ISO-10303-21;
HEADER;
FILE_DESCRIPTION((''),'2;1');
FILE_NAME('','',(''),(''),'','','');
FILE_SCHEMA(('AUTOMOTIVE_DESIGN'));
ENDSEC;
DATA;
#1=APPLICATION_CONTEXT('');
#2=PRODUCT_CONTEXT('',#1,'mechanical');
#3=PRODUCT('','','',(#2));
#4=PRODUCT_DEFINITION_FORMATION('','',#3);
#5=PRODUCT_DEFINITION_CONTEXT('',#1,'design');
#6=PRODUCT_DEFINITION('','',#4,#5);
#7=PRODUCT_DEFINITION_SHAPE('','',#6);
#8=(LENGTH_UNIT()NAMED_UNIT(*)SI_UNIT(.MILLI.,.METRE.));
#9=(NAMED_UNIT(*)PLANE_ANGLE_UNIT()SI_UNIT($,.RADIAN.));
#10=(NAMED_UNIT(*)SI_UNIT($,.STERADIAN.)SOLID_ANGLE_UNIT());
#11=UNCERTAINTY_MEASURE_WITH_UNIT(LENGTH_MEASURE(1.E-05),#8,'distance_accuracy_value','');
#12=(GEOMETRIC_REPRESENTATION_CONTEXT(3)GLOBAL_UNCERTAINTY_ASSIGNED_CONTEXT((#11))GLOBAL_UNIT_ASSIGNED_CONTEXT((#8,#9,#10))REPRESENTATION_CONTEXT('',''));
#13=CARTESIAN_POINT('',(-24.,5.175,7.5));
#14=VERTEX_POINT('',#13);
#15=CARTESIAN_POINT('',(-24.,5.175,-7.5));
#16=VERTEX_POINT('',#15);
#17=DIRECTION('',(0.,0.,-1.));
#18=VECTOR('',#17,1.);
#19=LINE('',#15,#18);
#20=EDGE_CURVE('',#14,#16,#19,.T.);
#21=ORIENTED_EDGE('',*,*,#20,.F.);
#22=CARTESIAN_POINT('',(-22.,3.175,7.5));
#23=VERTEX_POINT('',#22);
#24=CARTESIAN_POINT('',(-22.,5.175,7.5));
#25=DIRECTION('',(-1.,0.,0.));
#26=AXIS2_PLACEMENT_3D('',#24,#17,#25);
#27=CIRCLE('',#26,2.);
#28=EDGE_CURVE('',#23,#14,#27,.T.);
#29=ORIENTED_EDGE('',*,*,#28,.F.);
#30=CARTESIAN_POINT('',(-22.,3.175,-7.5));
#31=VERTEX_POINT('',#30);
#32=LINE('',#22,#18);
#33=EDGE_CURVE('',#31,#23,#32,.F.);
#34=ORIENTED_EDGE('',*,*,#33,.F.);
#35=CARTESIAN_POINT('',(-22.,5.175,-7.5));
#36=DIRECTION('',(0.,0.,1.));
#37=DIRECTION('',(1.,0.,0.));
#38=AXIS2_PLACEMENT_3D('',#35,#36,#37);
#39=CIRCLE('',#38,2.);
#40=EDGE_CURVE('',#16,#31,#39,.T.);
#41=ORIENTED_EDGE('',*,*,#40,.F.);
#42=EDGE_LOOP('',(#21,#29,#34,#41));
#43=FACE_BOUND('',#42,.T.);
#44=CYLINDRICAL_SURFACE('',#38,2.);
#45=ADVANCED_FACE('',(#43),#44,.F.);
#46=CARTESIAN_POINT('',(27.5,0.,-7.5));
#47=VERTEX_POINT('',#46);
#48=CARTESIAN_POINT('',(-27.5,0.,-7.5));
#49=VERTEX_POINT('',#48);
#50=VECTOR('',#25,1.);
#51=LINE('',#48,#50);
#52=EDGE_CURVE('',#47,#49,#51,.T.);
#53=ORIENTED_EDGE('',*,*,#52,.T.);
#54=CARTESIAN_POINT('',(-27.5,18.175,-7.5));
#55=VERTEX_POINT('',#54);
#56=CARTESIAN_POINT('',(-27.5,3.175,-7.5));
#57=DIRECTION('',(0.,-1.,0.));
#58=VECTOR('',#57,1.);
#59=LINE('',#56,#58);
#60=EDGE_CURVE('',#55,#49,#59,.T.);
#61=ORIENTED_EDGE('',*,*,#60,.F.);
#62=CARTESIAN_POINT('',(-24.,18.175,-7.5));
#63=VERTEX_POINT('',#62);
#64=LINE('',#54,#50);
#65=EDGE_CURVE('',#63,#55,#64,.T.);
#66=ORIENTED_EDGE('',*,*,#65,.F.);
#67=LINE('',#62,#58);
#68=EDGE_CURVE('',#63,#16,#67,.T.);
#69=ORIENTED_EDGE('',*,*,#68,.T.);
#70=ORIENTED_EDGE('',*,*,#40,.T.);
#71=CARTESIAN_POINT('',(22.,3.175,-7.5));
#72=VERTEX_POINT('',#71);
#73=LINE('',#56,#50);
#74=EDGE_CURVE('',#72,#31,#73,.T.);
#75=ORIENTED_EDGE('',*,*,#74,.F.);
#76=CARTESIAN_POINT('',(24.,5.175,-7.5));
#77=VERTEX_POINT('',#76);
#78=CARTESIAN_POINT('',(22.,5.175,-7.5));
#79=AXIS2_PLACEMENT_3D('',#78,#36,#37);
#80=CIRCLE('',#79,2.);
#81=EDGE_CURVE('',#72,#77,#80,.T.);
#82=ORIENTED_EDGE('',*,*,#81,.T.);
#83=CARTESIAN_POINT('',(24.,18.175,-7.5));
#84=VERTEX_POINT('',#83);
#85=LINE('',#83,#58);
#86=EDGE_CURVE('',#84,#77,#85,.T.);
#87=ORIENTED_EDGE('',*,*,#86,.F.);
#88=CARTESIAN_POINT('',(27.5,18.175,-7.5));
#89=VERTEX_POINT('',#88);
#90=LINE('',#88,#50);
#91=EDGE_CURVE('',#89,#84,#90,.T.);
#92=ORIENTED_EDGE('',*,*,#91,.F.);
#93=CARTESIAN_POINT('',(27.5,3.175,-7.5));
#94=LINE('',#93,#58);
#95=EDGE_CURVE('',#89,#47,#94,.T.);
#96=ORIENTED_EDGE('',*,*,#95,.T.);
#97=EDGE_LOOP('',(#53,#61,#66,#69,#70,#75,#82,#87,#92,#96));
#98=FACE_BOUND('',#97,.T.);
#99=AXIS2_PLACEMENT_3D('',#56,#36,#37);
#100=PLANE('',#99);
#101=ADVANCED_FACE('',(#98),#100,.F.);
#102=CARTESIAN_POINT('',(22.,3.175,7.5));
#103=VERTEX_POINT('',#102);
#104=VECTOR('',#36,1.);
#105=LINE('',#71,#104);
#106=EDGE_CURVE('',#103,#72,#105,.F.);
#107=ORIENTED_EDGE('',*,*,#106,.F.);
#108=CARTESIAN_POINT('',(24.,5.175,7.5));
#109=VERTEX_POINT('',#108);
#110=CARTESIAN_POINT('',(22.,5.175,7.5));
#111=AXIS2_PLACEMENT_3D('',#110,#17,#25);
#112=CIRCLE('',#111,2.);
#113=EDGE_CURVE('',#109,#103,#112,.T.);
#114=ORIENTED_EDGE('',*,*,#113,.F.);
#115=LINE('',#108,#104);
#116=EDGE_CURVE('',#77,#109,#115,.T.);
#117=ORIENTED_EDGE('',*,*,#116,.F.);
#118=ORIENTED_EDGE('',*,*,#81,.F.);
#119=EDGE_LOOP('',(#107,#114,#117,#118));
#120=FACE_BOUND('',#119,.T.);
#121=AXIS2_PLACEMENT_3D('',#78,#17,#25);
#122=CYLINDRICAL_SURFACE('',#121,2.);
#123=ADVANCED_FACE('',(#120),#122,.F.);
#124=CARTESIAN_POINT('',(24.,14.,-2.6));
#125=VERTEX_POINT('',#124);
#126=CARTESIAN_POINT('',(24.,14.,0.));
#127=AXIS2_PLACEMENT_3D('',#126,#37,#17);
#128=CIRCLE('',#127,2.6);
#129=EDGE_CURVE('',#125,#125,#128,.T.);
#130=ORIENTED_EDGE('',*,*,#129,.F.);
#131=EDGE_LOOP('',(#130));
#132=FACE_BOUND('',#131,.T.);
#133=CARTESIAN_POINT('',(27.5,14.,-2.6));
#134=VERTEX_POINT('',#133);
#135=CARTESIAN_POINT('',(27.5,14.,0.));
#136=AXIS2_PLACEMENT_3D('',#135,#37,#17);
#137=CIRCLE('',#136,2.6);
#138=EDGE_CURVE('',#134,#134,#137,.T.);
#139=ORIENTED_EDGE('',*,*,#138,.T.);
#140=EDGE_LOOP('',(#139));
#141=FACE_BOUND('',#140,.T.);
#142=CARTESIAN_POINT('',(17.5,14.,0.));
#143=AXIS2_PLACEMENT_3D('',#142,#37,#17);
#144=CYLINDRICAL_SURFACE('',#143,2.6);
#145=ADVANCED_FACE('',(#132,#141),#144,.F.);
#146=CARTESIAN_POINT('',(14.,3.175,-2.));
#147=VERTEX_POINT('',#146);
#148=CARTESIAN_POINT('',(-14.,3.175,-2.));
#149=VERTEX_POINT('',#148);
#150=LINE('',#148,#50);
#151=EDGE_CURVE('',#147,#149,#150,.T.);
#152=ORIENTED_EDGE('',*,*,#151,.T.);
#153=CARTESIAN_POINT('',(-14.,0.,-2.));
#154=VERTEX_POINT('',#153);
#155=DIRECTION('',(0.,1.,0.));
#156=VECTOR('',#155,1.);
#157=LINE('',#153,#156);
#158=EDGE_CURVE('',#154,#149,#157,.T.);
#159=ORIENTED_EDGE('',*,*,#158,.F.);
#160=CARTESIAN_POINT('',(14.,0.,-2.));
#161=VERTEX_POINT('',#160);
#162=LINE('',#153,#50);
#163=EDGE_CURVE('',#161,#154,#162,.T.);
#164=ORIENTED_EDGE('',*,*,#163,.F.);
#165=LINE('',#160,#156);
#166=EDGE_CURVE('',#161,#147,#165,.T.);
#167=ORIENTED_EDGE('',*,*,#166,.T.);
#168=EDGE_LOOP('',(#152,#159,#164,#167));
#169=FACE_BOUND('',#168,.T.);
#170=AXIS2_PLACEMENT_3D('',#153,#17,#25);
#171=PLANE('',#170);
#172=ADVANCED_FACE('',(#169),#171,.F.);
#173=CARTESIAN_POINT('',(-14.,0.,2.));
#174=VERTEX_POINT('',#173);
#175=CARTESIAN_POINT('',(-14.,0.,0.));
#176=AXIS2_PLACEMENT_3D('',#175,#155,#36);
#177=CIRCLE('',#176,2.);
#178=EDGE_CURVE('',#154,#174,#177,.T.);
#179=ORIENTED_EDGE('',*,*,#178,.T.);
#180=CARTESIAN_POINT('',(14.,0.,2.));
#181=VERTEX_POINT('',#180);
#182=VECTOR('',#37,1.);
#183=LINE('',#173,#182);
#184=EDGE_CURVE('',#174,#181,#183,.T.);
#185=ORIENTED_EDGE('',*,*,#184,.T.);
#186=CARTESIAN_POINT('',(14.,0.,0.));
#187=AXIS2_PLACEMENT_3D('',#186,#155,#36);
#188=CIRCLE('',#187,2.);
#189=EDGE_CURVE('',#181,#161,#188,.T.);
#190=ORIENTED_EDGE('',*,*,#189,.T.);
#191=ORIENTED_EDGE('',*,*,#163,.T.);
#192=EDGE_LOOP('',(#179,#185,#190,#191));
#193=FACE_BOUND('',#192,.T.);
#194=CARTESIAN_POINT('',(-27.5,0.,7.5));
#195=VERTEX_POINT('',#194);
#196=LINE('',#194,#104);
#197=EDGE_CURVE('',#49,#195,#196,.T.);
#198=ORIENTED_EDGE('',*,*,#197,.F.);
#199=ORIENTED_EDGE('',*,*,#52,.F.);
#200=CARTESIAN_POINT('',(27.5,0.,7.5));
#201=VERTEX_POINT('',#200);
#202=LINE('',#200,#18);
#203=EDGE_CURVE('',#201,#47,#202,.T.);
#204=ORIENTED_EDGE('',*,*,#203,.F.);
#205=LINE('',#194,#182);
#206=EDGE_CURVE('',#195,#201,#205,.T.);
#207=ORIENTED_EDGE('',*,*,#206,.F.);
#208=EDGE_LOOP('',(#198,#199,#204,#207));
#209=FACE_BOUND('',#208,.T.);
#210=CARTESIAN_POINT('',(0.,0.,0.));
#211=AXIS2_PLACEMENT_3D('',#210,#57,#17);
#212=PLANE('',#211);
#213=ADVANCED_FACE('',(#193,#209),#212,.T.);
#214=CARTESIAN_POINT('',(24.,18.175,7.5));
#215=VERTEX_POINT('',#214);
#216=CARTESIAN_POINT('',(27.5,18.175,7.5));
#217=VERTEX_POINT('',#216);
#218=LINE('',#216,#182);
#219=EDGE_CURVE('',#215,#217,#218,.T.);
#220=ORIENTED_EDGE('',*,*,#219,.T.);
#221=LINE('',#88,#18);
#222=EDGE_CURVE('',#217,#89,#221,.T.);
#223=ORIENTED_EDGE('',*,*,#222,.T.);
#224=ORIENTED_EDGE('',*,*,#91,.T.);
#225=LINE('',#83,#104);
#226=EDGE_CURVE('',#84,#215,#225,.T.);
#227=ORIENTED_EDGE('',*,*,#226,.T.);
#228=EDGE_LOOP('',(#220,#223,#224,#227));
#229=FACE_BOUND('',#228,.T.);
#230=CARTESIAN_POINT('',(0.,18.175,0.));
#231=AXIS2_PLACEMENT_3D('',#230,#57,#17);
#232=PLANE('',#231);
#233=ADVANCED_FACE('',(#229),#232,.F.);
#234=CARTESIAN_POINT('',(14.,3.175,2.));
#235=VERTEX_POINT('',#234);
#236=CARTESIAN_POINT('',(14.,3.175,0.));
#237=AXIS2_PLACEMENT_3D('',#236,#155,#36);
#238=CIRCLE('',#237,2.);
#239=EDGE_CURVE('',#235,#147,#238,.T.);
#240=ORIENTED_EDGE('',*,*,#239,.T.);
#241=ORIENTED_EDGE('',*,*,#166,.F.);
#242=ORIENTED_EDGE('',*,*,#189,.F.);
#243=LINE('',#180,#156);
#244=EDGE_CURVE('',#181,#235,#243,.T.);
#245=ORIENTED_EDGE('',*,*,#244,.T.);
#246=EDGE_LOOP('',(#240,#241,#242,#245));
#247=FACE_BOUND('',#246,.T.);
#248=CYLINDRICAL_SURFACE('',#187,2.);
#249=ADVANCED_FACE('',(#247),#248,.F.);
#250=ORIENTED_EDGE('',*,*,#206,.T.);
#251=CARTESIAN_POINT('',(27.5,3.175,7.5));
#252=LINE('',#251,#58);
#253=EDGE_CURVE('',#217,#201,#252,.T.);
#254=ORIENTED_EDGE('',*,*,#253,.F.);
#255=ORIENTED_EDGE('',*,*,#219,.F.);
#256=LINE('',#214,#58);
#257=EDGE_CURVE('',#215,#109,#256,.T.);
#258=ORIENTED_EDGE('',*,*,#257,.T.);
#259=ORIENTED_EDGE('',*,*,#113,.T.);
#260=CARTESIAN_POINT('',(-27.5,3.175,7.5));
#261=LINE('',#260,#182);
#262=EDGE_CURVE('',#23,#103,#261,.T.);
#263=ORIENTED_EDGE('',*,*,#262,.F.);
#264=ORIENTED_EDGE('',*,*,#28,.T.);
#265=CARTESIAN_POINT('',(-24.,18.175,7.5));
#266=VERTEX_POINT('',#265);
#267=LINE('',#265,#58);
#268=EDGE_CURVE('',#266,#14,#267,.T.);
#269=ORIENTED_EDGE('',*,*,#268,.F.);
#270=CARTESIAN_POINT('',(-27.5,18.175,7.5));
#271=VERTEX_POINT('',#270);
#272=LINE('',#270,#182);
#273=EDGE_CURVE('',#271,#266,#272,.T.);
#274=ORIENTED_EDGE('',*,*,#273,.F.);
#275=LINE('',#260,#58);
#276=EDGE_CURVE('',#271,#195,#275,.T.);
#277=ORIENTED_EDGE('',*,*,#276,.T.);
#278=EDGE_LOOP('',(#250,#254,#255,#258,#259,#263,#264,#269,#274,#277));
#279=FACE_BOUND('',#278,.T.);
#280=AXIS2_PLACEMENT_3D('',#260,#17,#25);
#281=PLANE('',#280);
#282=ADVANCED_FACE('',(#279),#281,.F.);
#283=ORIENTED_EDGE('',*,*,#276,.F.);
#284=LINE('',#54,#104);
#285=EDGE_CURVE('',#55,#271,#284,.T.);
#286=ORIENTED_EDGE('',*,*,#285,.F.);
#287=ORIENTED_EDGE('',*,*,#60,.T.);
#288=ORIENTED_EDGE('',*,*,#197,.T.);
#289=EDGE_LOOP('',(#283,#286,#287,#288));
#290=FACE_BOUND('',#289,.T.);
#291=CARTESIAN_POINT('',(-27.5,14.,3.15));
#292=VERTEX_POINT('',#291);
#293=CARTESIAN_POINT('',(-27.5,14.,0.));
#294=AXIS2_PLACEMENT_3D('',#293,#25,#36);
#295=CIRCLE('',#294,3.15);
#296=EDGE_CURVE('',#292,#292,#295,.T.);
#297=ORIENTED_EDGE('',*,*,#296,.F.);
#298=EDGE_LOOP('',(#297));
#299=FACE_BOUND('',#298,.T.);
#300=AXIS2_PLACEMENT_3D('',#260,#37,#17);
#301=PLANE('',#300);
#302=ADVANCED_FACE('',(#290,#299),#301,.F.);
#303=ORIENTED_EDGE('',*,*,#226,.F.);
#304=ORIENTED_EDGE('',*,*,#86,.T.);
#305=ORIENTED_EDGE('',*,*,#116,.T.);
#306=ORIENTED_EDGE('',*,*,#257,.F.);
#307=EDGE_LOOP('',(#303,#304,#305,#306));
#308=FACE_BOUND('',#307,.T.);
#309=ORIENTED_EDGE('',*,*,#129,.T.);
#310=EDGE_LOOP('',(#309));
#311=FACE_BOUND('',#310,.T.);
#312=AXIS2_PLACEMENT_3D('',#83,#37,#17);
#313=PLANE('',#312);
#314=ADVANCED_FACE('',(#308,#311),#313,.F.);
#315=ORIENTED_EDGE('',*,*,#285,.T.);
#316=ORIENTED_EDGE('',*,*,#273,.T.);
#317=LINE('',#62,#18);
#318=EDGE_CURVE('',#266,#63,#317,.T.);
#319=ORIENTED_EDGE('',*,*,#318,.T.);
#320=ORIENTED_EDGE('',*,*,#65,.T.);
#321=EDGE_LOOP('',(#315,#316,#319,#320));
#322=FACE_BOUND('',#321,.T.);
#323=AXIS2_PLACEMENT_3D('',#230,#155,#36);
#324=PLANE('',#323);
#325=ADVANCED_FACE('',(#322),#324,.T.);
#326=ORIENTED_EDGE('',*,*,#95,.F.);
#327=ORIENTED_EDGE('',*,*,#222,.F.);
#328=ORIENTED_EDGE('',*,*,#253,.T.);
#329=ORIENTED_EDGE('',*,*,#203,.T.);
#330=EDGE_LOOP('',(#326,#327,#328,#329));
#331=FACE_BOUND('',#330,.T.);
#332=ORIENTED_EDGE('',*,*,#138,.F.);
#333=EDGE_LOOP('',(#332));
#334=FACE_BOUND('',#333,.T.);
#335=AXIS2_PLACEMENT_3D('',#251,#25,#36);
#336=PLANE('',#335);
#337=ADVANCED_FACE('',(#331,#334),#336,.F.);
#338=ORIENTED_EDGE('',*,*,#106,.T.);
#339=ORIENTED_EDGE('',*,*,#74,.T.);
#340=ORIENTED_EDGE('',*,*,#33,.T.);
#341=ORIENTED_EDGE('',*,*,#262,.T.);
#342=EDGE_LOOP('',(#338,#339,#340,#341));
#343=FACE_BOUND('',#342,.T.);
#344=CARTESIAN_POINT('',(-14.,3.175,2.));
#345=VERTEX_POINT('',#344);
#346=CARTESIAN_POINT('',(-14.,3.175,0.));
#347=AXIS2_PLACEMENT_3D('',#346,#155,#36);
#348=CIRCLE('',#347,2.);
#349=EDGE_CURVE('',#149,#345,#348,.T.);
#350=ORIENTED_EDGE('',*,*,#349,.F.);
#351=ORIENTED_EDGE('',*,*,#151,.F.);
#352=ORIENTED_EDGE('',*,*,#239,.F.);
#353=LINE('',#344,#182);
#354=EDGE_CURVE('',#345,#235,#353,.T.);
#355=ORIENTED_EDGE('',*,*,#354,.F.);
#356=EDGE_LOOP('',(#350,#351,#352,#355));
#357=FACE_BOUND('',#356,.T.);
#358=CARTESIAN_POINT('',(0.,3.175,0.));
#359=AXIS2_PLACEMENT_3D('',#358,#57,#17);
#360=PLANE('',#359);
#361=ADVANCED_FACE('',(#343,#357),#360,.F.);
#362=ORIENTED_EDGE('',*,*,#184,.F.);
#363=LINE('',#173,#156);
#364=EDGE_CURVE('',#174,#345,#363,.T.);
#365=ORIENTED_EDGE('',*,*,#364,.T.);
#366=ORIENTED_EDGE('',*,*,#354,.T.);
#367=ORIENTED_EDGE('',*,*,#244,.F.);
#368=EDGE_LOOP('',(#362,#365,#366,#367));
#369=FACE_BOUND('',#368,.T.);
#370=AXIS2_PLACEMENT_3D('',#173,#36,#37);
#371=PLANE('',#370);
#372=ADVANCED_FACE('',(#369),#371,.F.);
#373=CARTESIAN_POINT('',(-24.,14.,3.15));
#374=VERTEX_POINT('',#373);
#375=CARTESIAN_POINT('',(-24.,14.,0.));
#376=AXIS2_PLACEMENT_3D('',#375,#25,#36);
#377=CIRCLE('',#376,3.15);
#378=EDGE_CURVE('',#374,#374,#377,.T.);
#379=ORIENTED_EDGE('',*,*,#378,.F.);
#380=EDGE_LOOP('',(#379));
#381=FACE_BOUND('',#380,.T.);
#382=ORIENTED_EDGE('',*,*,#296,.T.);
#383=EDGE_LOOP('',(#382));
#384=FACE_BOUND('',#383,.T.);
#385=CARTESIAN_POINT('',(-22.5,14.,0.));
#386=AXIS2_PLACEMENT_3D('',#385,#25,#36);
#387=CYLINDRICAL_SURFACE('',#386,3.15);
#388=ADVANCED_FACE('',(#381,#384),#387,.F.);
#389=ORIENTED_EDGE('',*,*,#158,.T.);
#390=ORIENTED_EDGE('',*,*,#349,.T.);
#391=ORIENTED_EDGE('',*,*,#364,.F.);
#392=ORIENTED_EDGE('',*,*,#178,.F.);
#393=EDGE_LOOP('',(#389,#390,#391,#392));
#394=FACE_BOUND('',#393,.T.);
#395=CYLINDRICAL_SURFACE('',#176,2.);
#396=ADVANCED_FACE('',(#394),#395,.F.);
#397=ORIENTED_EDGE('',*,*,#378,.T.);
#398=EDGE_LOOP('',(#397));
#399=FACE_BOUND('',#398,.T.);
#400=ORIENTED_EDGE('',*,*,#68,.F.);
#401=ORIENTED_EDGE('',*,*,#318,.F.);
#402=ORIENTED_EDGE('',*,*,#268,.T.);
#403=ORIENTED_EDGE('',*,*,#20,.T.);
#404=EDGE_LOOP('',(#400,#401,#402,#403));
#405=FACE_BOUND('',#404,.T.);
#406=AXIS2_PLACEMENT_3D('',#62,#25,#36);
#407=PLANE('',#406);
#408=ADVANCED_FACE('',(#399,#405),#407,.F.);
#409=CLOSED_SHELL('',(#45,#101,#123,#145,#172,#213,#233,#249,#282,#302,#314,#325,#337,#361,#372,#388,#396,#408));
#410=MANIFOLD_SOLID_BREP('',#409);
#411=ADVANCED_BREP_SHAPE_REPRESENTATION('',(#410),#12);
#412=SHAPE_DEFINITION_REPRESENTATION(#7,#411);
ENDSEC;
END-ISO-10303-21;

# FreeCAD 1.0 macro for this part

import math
import FreeCAD as App
import Part
import Sketcher
from FreeCAD import Vector
Q = App.Units.Quantity


def edges_at(feature, points):
    """Names of the edges that pass closest to the given points."""
    edges = feature.Shape.Edges
    near = lambda p: min(range(len(edges)), key=lambda i: edges[i].distToShape(Part.Vertex(*p))[0])
    return sorted({f"Edge{near(p) + 1}" for p in points})


def add_polygon(sketch, points):
    """Adds a closed chain of lines whose ends are joined by coincident constraints."""
    first, n = sketch.GeometryCount, len(points)
    for a, b in zip(points, points[1:] + points[:1]):
        sketch.addGeometry(Part.LineSegment(App.Vector(*a, 0), App.Vector(*b, 0)), False)
    for i in range(n):
        sketch.addConstraint(Sketcher.Constraint("Coincident", first + i, 2, first + (i + 1) % n, 1))

doc = App.newDocument("Part")
body = doc.addObject("PartDesign::Body", "Body")

# Sketch on XZ plane
sketch1 = body.newObject("Sketcher::SketchObject", "Sketch")
sketch1.AttachmentSupport = (doc.getObject("XZ_Plane"), [""])
sketch1.MapMode = "FlatFace"
add_polygon(sketch1, [(-28, -8), (-28, 8), (28, 8), (28, -8)])  # lines 0-3
sketch1.addConstraint([
    Sketcher.Constraint("Vertical", 0),
    Sketcher.Constraint("Horizontal", 1),
    Sketcher.Constraint("Vertical", 2),
    Sketcher.Constraint("Horizontal", 3),
    Sketcher.Constraint("Symmetric", 0, 2, 2, 2, -1, 1),
    Sketcher.Constraint("DistanceX", 1, 1, 1, 2, Q("55 mm")),
    Sketcher.Constraint("DistanceY", 0, 1, 0, 2, Q("15 mm")),
])
pad1 = body.newObject("PartDesign::Pad", "Pad")
pad1.Profile = sketch1
pad1.Length = 3.175
pad1.Reversed = True

# Sketch on XZ plane
sketch2 = body.newObject("Sketcher::SketchObject", "Sketch001")
sketch2.AttachmentSupport = (doc.getObject("XZ_Plane"), [""])
sketch2.MapMode = "FlatFace"
sketch2.AttachmentOffset = App.Placement(Vector(0, 0, -3.175), App.Rotation())
add_polygon(sketch2, [(-27.5, -7.5), (-27.5, 7.5), (-24, 7.5), (-24, -7.5)])  # lines 0-3
add_polygon(sketch2, [(24, -7.5), (24, 7.5), (27.5, 7.5), (27.5, -7.5)])  # lines 4-7
sketch2.addConstraint([
    Sketcher.Constraint("Vertical", 0),
    Sketcher.Constraint("Horizontal", 1),
    Sketcher.Constraint("Vertical", 2),
    Sketcher.Constraint("Horizontal", 3),
    Sketcher.Constraint("Vertical", 4),
    Sketcher.Constraint("Horizontal", 5),
    Sketcher.Constraint("Vertical", 6),
    Sketcher.Constraint("Horizontal", 7),
    Sketcher.Constraint("Symmetric", 2, 2, 4, 2, -1, 1),
    Sketcher.Constraint("Symmetric", 0, 2, 6, 2, -1, 1),
    Sketcher.Constraint("Horizontal", 1, 2, 4, 2),
    Sketcher.Constraint("DistanceY", 0, 1, 0, 2, Q("15 mm")),
    Sketcher.Constraint("DistanceX", 1, 1, 1, 2, Q("3.5 mm")),
    Sketcher.Constraint("DistanceX", 1, 2, -1, 1, Q("24 mm")),
])
pad2 = body.newObject("PartDesign::Pad", "Pad001")
pad2.Profile = sketch2
pad2.Length = 15
pad2.Reversed = True
doc.recompute()

fillet = body.newObject("PartDesign::Fillet", "Fillet")
fillet.Base = (pad2, edges_at(pad2, [(-24, 3.175, 0), (24, 3.175, 0)]))
fillet.Radius = 2

# Sketch on XZ plane
sketch3 = body.newObject("Sketcher::SketchObject", "Sketch002")
sketch3.AttachmentSupport = (doc.getObject("XZ_Plane"), [""])
sketch3.MapMode = "FlatFace"
sketch3.AttachmentOffset = App.Placement(Vector(0, 0, -3.175), App.Rotation())
sketch3.addGeometry([
    Part.LineSegment(Vector(14, -2, 0), Vector(-14, -2, 0)),
    Part.ArcOfCircle(Part.Circle(Vector(-14, 0, 0), Vector(0, 0, 1), 2), math.radians(90), math.radians(270)),
    Part.LineSegment(Vector(-14, 2, 0), Vector(14, 2, 0)),
    Part.ArcOfCircle(Part.Circle(Vector(14, 0, 0), Vector(0, 0, 1), 2), math.radians(-90), math.radians(90)),
], False)
sketch3.addConstraint([
    Sketcher.Constraint("Tangent", 0, 2, 1, 2),
    Sketcher.Constraint("Tangent", 1, 1, 2, 1),
    Sketcher.Constraint("Tangent", 2, 2, 3, 2),
    Sketcher.Constraint("Tangent", 3, 1, 0, 1),
    Sketcher.Constraint("Horizontal", 0),
    Sketcher.Constraint("Horizontal", 2),
    Sketcher.Constraint("Symmetric", 1, 3, 3, 3, -1, 1),
    Sketcher.Constraint("Radius", 1, Q("2 mm")),
    Sketcher.Constraint("DistanceX", 0, 2, 0, 1, Q("28 mm")),
])
pocket1 = body.newObject("PartDesign::Pocket", "Pocket")
pocket1.Profile = sketch3
pocket1.Type = "ThroughAll"
pocket1.Reversed = True

# Sketch on YZ plane
sketch4 = body.newObject("Sketcher::SketchObject", "Sketch003")
sketch4.AttachmentSupport = (doc.getObject("YZ_Plane"), [""])
sketch4.MapMode = "FlatFace"
sketch4.AttachmentOffset = App.Placement(Vector(0, 0, 27.5), App.Rotation())
sketch4.addGeometry(Part.Circle(Vector(14, 0, 0), Vector(0, 0, 1), 2.6), False)
sketch4.addConstraint([
    Sketcher.Constraint("PointOnObject", 0, 3, -1),
    Sketcher.Constraint("Diameter", 0, Q("5.2 mm")),
    Sketcher.Constraint("DistanceX", -1, 1, 0, 3, Q("14 mm")),
])
pocket2 = body.newObject("PartDesign::Pocket", "Pocket001")
pocket2.Profile = sketch4
pocket2.Length = 10

# Sketch on YZ plane
sketch5 = body.newObject("Sketcher::SketchObject", "Sketch004")
sketch5.AttachmentSupport = (doc.getObject("YZ_Plane"), [""])
sketch5.MapMode = "FlatFace"
sketch5.AttachmentOffset = App.Placement(Vector(0, 0, -27.5), App.Rotation())
sketch5.addGeometry(Part.Circle(Vector(14, 0, 0), Vector(0, 0, 1), 3.1), False)
sketch5.addConstraint([
    Sketcher.Constraint("PointOnObject", 0, 3, -1),
    Sketcher.Constraint("Diameter", 0, Q("6.3 mm")),
    Sketcher.Constraint("DistanceX", -1, 1, 0, 3, Q("14 mm")),
])
pocket3 = body.newObject("PartDesign::Pocket", "Pocket002")
pocket3.Profile = sketch5
pocket3.Length = 5
pocket3.Reversed = True

doc.recompute()
